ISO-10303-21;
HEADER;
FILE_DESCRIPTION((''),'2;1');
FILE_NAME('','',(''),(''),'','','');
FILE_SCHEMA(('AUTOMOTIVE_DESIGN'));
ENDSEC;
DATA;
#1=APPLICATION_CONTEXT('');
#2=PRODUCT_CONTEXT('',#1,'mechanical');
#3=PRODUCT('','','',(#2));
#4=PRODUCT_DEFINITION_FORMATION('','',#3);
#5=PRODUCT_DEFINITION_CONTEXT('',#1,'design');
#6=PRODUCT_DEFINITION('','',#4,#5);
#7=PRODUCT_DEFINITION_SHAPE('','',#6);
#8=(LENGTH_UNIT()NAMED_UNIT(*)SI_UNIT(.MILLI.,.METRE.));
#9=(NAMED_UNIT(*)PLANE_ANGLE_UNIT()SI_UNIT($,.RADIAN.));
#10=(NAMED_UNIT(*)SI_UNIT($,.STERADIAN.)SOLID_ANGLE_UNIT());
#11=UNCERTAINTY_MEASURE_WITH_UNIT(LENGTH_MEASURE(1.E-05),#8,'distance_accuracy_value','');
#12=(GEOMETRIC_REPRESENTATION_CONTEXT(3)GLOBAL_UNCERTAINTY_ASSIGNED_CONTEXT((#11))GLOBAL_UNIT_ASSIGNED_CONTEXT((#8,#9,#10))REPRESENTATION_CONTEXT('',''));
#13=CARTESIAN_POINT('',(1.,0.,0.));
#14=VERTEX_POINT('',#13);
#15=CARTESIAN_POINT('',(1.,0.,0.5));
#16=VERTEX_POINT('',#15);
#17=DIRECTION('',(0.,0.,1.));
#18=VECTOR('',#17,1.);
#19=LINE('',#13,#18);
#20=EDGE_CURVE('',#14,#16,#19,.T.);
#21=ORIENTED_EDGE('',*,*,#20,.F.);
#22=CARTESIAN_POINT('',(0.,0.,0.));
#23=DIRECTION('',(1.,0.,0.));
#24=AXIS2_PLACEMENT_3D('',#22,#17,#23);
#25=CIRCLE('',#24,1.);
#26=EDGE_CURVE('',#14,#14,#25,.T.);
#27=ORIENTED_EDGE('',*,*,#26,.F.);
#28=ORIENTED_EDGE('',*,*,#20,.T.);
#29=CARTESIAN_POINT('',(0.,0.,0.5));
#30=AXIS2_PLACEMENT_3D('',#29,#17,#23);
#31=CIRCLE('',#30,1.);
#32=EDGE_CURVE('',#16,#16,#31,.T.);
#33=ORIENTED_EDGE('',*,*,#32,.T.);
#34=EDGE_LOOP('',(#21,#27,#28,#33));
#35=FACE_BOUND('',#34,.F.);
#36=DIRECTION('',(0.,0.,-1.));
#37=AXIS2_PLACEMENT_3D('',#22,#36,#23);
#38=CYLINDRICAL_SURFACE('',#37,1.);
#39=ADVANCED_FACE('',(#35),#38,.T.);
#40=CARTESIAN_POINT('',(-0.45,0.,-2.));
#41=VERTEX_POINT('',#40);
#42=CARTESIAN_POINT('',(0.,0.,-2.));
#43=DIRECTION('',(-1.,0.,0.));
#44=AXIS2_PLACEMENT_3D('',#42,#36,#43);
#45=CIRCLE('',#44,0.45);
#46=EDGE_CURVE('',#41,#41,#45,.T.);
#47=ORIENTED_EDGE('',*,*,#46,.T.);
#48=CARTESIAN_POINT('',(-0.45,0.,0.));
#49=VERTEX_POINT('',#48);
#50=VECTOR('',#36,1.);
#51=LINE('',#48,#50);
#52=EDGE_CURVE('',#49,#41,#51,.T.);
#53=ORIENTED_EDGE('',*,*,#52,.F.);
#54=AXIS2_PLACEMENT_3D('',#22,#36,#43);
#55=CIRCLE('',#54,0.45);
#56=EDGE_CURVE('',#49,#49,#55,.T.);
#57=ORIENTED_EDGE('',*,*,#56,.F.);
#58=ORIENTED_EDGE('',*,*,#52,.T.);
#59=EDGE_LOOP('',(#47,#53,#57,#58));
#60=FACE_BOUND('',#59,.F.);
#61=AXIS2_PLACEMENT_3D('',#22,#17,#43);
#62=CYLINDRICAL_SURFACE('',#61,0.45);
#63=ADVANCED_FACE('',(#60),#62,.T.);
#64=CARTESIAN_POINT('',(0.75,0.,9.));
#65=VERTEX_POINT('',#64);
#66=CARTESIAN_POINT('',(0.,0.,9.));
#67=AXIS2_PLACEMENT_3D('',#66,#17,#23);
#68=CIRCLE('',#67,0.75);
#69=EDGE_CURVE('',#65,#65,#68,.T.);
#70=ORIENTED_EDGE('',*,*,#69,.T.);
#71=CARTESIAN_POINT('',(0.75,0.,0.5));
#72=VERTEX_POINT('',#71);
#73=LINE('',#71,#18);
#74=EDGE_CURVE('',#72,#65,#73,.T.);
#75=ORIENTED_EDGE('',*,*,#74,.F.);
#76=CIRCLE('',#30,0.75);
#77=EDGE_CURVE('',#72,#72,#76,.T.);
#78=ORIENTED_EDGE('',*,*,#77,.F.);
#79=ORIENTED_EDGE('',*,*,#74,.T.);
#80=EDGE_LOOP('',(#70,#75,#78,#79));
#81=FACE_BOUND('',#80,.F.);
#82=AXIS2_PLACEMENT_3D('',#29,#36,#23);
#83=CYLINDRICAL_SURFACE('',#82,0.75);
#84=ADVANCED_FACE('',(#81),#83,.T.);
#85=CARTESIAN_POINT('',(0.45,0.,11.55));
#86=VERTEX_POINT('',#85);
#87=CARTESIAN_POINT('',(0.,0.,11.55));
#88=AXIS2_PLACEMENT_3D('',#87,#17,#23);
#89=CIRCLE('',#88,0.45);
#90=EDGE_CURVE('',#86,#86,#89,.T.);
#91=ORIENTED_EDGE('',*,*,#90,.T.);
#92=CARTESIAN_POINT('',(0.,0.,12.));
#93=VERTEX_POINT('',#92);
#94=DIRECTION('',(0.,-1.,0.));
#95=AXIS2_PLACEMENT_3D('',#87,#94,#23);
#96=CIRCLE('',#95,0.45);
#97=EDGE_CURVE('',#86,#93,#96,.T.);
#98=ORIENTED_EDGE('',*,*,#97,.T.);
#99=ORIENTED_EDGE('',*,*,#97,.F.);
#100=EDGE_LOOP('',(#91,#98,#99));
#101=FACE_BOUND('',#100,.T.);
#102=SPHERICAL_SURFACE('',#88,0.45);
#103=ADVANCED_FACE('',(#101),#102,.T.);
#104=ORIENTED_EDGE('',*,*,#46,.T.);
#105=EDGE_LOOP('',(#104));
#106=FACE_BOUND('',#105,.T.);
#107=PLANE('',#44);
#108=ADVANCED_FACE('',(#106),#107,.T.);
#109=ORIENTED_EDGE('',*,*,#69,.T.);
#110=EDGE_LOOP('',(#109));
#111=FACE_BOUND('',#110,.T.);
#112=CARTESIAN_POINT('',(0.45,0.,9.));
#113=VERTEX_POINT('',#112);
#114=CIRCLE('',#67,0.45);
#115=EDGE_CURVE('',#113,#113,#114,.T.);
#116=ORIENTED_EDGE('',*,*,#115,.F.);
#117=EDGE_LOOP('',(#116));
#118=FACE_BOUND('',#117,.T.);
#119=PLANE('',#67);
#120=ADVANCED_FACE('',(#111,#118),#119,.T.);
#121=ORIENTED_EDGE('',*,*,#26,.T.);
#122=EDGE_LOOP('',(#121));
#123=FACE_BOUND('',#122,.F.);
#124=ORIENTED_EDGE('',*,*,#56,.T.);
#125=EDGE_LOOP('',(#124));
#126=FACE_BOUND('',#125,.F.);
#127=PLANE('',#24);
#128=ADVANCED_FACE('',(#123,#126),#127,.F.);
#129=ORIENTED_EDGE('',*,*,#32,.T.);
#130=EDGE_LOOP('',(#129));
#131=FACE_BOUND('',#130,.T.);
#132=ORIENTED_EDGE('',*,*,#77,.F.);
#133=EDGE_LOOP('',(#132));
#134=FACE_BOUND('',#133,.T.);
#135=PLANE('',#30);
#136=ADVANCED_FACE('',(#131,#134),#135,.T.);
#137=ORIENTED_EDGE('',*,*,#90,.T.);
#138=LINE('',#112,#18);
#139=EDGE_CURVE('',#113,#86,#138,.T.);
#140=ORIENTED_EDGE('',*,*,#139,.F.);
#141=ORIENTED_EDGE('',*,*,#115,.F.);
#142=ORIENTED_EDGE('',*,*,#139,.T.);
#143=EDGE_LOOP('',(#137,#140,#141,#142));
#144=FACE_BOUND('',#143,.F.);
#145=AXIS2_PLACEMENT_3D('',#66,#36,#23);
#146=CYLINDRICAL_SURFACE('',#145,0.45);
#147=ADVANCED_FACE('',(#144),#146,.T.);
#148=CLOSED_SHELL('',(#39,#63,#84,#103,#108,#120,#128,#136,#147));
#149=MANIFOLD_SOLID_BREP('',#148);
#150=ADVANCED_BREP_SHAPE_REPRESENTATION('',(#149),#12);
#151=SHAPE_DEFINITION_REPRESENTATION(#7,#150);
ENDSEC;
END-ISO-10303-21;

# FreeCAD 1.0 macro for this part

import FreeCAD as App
import Part
import Sketcher
Q = App.Units.Quantity


def edges_at(feature, points):
    """Names of the edges that pass closest to the given points."""
    edges = feature.Shape.Edges
    near = lambda p: min(range(len(edges)), key=lambda i: edges[i].distToShape(Part.Vertex(*p))[0])
    return sorted({f"Edge{near(p) + 1}" for p in points})

doc = App.newDocument("Part")
body = doc.addObject("PartDesign::Body", "Body")

# Sketch on XY plane
sketch1 = body.newObject("Sketcher::SketchObject", "Sketch")
sketch1.AttachmentSupport = (doc.getObject("XY_Plane"), [""])
sketch1.MapMode = "FlatFace"
sketch1.addGeometry(Part.Circle(App.Vector(0, 0, 0), App.Vector(0, 0, 1), 1), False)
sketch1.addConstraint([
    Sketcher.Constraint("Coincident", 0, 3, -1, 1),
    Sketcher.Constraint("Diameter", 0, Q("2 mm")),
])
pad1 = body.newObject("PartDesign::Pad", "Pad")
pad1.Profile = sketch1
pad1.Length = 0.5

# Sketch on XY plane
sketch2 = body.newObject("Sketcher::SketchObject", "Sketch001")
sketch2.AttachmentSupport = (doc.getObject("XY_Plane"), [""])
sketch2.MapMode = "FlatFace"
sketch2.AttachmentOffset = App.Placement(App.Vector(0, 0, 0.5), App.Rotation())
sketch2.addGeometry(Part.Circle(App.Vector(0, 0, 0), App.Vector(0, 0, 1), 0.75), False)
sketch2.addConstraint([
    Sketcher.Constraint("Coincident", 0, 3, -1, 1),
    Sketcher.Constraint("Diameter", 0, Q("1.5 mm")),
])
pad2 = body.newObject("PartDesign::Pad", "Pad001")
pad2.Profile = sketch2
pad2.Length = 8.5

# Sketch on XY plane
sketch3 = body.newObject("Sketcher::SketchObject", "Sketch002")
sketch3.AttachmentSupport = (doc.getObject("XY_Plane"), [""])
sketch3.MapMode = "FlatFace"
sketch3.AttachmentOffset = App.Placement(App.Vector(0, 0, 9), App.Rotation())
sketch3.addGeometry(Part.Circle(App.Vector(0, 0, 0), App.Vector(0, 0, 1), 0.45), False)
sketch3.addConstraint([
    Sketcher.Constraint("Coincident", 0, 3, -1, 1),
    Sketcher.Constraint("Diameter", 0, Q("0.9 mm")),
])
pad3 = body.newObject("PartDesign::Pad", "Pad002")
pad3.Profile = sketch3
pad3.Length = 3
doc.recompute()

fillet = body.newObject("PartDesign::Fillet", "Fillet")
fillet.Base = (pad3, edges_at(pad3, [(-0.45, 0, 12)]))
fillet.Radius = 0.45

# Sketch on XY plane
sketch4 = body.newObject("Sketcher::SketchObject", "Sketch003")
sketch4.AttachmentSupport = (doc.getObject("XY_Plane"), [""])
sketch4.MapMode = "FlatFace"
sketch4.addGeometry(Part.Circle(App.Vector(0, 0, 0), App.Vector(0, 0, 1), 0.45), False)
sketch4.addConstraint([
    Sketcher.Constraint("Coincident", 0, 3, -1, 1),
    Sketcher.Constraint("Diameter", 0, Q("0.9 mm")),
])
pad4 = body.newObject("PartDesign::Pad", "Pad003")
pad4.Profile = sketch4
pad4.Length = 2
pad4.Reversed = True

doc.recompute()
